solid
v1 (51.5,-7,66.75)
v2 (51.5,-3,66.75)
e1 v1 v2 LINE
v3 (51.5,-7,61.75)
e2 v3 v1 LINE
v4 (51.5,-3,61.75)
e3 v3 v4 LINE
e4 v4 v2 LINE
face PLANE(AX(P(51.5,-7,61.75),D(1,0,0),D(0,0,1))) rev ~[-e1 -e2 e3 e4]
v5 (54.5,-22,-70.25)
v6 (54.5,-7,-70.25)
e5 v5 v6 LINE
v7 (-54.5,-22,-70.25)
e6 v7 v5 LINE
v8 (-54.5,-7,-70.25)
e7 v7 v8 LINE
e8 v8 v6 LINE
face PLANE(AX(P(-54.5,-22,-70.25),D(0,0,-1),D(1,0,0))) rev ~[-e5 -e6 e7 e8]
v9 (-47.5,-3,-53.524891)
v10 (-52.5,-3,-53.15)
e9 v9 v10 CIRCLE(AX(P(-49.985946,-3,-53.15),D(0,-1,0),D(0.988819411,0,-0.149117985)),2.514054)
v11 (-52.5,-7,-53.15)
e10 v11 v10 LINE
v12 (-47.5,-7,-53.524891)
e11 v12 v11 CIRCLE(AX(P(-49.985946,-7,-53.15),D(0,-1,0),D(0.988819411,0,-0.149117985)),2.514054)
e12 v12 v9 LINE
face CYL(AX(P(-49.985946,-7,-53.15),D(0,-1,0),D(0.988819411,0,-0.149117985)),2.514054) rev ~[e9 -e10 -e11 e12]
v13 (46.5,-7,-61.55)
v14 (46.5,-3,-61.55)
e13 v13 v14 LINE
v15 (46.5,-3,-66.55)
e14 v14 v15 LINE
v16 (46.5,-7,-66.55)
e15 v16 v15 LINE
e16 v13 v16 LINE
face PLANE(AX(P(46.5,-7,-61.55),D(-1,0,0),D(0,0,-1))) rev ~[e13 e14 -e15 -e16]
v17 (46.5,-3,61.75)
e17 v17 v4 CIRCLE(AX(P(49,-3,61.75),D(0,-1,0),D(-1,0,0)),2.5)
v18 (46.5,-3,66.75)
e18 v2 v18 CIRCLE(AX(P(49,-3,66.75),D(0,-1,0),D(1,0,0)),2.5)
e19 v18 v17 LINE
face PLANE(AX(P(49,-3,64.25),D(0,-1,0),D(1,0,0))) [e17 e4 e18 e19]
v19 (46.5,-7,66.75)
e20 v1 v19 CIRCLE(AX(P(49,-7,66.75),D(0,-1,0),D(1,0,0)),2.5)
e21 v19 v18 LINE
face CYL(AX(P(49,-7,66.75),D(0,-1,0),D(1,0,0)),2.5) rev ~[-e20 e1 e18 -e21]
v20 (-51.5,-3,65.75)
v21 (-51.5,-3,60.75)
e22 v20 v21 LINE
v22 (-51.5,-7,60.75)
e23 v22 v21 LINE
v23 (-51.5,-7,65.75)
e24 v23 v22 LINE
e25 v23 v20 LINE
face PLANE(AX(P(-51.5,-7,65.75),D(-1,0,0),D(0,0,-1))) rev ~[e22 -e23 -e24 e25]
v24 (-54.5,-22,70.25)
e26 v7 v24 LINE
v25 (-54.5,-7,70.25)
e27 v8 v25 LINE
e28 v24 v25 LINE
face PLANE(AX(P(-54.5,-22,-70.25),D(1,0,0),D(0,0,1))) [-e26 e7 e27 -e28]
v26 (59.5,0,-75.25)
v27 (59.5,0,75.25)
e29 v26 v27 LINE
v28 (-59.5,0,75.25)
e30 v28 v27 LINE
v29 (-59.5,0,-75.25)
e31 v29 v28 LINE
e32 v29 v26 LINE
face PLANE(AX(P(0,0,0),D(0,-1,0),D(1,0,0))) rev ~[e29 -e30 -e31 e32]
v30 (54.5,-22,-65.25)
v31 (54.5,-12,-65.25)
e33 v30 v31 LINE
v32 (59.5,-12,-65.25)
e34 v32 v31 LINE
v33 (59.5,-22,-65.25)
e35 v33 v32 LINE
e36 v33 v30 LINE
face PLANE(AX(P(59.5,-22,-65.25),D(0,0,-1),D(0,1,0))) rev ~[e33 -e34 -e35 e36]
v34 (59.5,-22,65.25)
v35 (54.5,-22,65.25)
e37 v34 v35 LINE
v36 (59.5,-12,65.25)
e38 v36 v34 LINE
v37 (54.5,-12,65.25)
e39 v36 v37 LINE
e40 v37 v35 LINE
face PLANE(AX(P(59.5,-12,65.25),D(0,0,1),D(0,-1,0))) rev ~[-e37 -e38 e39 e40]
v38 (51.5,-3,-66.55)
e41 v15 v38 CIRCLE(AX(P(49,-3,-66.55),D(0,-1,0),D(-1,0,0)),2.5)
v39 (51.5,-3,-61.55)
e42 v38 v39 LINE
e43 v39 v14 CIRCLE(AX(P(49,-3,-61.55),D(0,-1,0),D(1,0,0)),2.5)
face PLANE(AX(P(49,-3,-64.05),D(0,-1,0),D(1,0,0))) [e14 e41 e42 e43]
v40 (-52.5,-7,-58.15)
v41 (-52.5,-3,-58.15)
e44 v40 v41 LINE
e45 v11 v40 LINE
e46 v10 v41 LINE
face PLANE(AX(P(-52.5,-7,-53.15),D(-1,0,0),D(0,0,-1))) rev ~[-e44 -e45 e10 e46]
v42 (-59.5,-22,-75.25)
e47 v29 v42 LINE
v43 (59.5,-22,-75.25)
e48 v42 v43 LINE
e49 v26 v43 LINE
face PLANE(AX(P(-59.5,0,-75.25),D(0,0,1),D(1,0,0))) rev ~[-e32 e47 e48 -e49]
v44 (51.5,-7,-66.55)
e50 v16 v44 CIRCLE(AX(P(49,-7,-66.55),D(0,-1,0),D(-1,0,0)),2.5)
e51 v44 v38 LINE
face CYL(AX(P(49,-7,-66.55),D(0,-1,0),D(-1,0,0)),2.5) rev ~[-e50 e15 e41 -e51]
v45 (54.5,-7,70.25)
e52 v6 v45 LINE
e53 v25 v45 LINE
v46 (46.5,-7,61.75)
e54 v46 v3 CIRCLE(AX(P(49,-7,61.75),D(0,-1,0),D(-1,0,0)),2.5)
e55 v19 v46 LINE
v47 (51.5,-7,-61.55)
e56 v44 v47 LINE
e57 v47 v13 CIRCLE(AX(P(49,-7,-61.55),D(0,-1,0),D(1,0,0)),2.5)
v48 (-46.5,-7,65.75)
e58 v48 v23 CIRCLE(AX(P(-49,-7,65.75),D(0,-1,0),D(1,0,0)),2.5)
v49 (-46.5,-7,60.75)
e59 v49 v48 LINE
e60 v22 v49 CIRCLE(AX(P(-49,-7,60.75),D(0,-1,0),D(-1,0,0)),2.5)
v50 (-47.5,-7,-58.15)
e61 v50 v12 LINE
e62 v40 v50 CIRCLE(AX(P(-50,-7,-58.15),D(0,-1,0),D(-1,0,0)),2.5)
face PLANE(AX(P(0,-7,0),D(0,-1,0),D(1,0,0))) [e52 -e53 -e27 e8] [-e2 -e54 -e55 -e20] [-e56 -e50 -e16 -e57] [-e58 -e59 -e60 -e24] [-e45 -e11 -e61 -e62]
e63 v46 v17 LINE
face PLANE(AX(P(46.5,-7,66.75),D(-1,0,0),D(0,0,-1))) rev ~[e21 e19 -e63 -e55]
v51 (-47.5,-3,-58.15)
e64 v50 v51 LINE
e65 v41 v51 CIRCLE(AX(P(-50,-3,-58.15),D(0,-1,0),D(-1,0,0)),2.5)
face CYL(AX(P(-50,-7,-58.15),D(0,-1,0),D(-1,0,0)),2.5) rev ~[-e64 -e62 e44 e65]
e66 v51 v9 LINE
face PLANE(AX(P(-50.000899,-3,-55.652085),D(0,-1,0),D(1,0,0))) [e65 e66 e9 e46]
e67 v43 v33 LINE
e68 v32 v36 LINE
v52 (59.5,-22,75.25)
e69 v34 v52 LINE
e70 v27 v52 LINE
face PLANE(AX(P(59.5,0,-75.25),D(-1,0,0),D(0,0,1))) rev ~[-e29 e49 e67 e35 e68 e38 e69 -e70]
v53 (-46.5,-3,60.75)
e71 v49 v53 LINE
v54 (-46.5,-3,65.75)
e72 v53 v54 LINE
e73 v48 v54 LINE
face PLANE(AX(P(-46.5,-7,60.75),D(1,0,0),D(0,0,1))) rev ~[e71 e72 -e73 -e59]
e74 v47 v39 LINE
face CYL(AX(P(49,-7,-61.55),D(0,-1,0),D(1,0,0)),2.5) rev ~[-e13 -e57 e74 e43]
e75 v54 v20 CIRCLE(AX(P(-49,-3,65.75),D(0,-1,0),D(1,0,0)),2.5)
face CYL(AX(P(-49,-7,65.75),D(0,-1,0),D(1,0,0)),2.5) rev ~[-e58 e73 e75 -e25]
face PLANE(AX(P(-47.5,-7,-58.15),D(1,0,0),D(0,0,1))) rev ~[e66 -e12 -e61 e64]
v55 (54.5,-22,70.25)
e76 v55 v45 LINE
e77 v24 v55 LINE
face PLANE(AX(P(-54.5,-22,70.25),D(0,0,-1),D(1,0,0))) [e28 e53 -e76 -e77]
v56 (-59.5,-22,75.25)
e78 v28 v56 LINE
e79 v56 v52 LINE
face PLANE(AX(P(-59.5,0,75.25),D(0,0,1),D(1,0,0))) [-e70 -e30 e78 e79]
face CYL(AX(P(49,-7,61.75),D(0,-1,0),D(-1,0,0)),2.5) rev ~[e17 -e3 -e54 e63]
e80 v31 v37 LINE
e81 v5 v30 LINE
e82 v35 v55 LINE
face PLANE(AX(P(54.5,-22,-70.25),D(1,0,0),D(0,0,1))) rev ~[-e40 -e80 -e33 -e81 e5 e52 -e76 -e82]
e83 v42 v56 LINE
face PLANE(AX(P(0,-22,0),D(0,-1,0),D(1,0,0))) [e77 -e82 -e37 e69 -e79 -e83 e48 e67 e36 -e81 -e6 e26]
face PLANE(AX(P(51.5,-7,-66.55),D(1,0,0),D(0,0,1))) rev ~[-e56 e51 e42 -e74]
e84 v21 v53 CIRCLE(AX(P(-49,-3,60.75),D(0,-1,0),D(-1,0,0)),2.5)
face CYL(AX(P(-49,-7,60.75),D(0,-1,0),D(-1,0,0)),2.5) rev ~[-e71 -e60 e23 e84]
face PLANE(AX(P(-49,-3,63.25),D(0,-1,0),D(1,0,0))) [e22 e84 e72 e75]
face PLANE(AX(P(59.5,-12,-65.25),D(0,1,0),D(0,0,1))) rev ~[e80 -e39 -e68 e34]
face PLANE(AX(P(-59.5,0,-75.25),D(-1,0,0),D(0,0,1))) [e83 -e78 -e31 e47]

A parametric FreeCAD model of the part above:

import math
import FreeCAD as App
import Part
import Sketcher


def add_polygon(sketch, points):
    """Adds a closed chain of lines whose ends are joined by coincident constraints."""
    first, n = sketch.GeometryCount, len(points)
    for a, b in zip(points, points[1:] + points[:1]):
        sketch.addGeometry(Part.LineSegment(App.Vector(*a, 0), App.Vector(*b, 0)), False)
    for i in range(n):
        sketch.addConstraint(Sketcher.Constraint("Coincident", first + i, 2, first + (i + 1) % n, 1))

doc = App.newDocument("Part")
params = doc.addObject("Spreadsheet::Sheet", "Params")
for row, (alias, value) in enumerate([
    ("sketch1_width", "119 mm"),
    ("sketch1_height", "150.5 mm"),
    ("pad1_length", "22 mm"),
    ("sketch2_width", "109 mm"),
    ("sketch2_height", "140.5 mm"),
    ("pocket1_length", "15 mm"),
    ("sketch3_width", "10 mm"),
    ("sketch3_height", "130.5 mm"),
    ("pocket2_length", "25 mm"),
    ("sketch4_radius", "2.5 mm"),
    ("sketch4_height", "5 mm"),
    ("pocket3_length", "4 mm"),
], start=1):
    params.set(f"A{row}", alias)
    params.set(f"B{row}", "=" + value)
    params.setAlias(f"B{row}", alias)

body = doc.addObject("PartDesign::Body", "Body")

# Sketch on XZ plane
sketch1 = doc.addObject("Sketcher::SketchObject", "Sketch")
body.addObject(sketch1)
sketch1.AttachmentSupport = (doc.XZ_Plane, [""])
sketch1.MapMode = "FlatFace"
add_polygon(sketch1, [(-60, 75), (-60, -75), (60, -75), (60, 75)])  # lines 0-3
sketch1.addConstraint([
    Sketcher.Constraint("Vertical", 0),
    Sketcher.Constraint("Horizontal", 1),
    Sketcher.Constraint("Vertical", 2),
    Sketcher.Constraint("Horizontal", 3),
    Sketcher.Constraint("Symmetric", 0, 2, 2, 2, -1, 1),
    Sketcher.Constraint("DistanceX", 1, 1, 1, 2, 119.0),
    Sketcher.Constraint("DistanceY", 0, 2, 0, 1, 150.5),
])
sketch1.setExpression("Constraints[9]", "Params.sketch1_width")
sketch1.setExpression("Constraints[10]", "Params.sketch1_height")
pad1 = doc.addObject("PartDesign::Pad", "Pad")
body.addObject(pad1)
pad1.Profile = sketch1
pad1.setExpression("Length", "Params.pad1_length")

# Sketch on XZ plane
sketch2 = doc.addObject("Sketcher::SketchObject", "Sketch001")
body.addObject(sketch2)
sketch2.AttachmentSupport = (doc.XZ_Plane, [""])
sketch2.MapMode = "FlatFace"
sketch2.AttachmentOffset = App.Placement(App.Vector(0, 0, 22), App.Rotation())
add_polygon(sketch2, [(-54, 70), (-54, -70), (54, -70), (54, 70)])  # lines 0-3
sketch2.addConstraint([
    Sketcher.Constraint("Vertical", 0),
    Sketcher.Constraint("Horizontal", 1),
    Sketcher.Constraint("Vertical", 2),
    Sketcher.Constraint("Horizontal", 3),
    Sketcher.Constraint("Symmetric", 0, 2, 2, 2, -1, 1),
    Sketcher.Constraint("DistanceX", 1, 1, 1, 2, 109.0),
    Sketcher.Constraint("DistanceY", 0, 2, 0, 1, 140.5),
])
sketch2.setExpression("Constraints[9]", "Params.sketch2_width")
sketch2.setExpression("Constraints[10]", "Params.sketch2_height")
pocket1 = doc.addObject("PartDesign::Pocket", "Pocket")
body.addObject(pocket1)
pocket1.Profile = sketch2
pocket1.setExpression("Length", "Params.pocket1_length")

# Sketch on YZ plane
sketch3 = doc.addObject("Sketcher::SketchObject", "Sketch002")
body.addObject(sketch3)
sketch3.AttachmentSupport = (doc.YZ_Plane, [""])
sketch3.MapMode = "FlatFace"
sketch3.AttachmentOffset = App.Placement(App.Vector(0, 0, 59.5), App.Rotation())
add_polygon(sketch3, [(-22, 65), (-22, -65), (-12, -65), (-12, 65)])  # lines 0-3
sketch3.addConstraint([
    Sketcher.Constraint("Vertical", 0),
    Sketcher.Constraint("Horizontal", 1),
    Sketcher.Constraint("Vertical", 2),
    Sketcher.Constraint("Horizontal", 3),
    Sketcher.Constraint("DistanceX", 1, 1, 1, 2, 10.0),
    Sketcher.Constraint("DistanceY", 0, 2, 0, 1, 130.5),
    Sketcher.Constraint("DistanceX", 0, 2, -1, 1, 22.0),
    Sketcher.Constraint("DistanceY", 0, 2, -1, 1, 65.25),
])
sketch3.setExpression("Constraints[8]", "Params.sketch3_width")
sketch3.setExpression("Constraints[9]", "Params.sketch3_height")
pocket2 = doc.addObject("PartDesign::Pocket", "Pocket001")
body.addObject(pocket2)
pocket2.Profile = sketch3
pocket2.setExpression("Length", "Params.pocket2_length")

# Sketch on XZ plane
sketch4 = doc.addObject("Sketcher::SketchObject", "Sketch003")
body.addObject(sketch4)
sketch4.AttachmentSupport = (doc.XZ_Plane, [""])
sketch4.MapMode = "FlatFace"
sketch4.AttachmentOffset = App.Placement(App.Vector(0, 0, 7), App.Rotation())
sketch4.addGeometry([
    Part.LineSegment(App.Vector(-46.5, 60.8, 0), App.Vector(-46.5, 65.8, 0)),  # 0
    Part.ArcOfCircle(Part.Circle(App.Vector(-49, 65.8, 0), App.Vector(0, 0, 1), 2.5), math.radians(0), math.radians(180)),  # 1
    Part.LineSegment(App.Vector(-51.5, 65.8, 0), App.Vector(-51.5, 60.8, 0)),  # 2
    Part.ArcOfCircle(Part.Circle(App.Vector(-49, 60.8, 0), App.Vector(0, 0, 1), 2.5), math.radians(180), math.radians(360)),  # 3
    Part.LineSegment(App.Vector(51.5, 61.8, 0), App.Vector(51.5, 66.8, 0)),  # 4
    Part.ArcOfCircle(Part.Circle(App.Vector(49, 66.8, 0), App.Vector(0, 0, 1), 2.5), math.radians(0), math.radians(180)),  # 5
    Part.LineSegment(App.Vector(46.5, 66.8, 0), App.Vector(46.5, 61.8, 0)),  # 6
    Part.ArcOfCircle(Part.Circle(App.Vector(49, 61.8, 0), App.Vector(0, 0, 1), 2.5), math.radians(180), math.radians(360)),  # 7
    Part.LineSegment(App.Vector(46.5, -61.5, 0), App.Vector(46.5, -66.5, 0)),  # 8
    Part.ArcOfCircle(Part.Circle(App.Vector(49, -66.5, 0), App.Vector(0, 0, 1), 2.5), math.radians(180), math.radians(360)),  # 9
    Part.LineSegment(App.Vector(51.5, -66.5, 0), App.Vector(51.5, -61.5, 0)),  # 10
    Part.ArcOfCircle(Part.Circle(App.Vector(49, -61.5, 0), App.Vector(0, 0, 1), 2.5), math.radians(0), math.radians(180)),  # 11
    Part.LineSegment(App.Vector(-52.5, -53.1, 0), App.Vector(-52.5, -58.1, 0)),  # 12
    Part.ArcOfCircle(Part.Circle(App.Vector(-50, -58.1, 0), App.Vector(0, 0, 1), 2.5), math.radians(180), math.radians(360)),  # 13
    Part.LineSegment(App.Vector(-47.5, -58.1, 0), App.Vector(-47.5, -53.5, 0)),  # 14
    Part.ArcOfCircle(Part.Circle(App.Vector(-50, -53.2, 0), App.Vector(0, 0, 1), 2.5), math.radians(-9), math.radians(180)),  # 15
], False)
sketch4.addConstraint([
    Sketcher.Constraint("Tangent", 0, 2, 1, 1),
    Sketcher.Constraint("Tangent", 1, 2, 2, 1),
    Sketcher.Constraint("Tangent", 2, 2, 3, 1),
    Sketcher.Constraint("Tangent", 3, 2, 0, 1),
    Sketcher.Constraint("Tangent", 4, 2, 5, 1),
    Sketcher.Constraint("Tangent", 5, 2, 6, 1),
    Sketcher.Constraint("Tangent", 6, 2, 7, 1),
    Sketcher.Constraint("Tangent", 7, 2, 4, 1),
    Sketcher.Constraint("Tangent", 8, 2, 9, 1),
    Sketcher.Constraint("Tangent", 9, 2, 10, 1),
    Sketcher.Constraint("Tangent", 10, 2, 11, 1),
    Sketcher.Constraint("Tangent", 11, 2, 8, 1),
    Sketcher.Constraint("Tangent", 12, 2, 13, 1),
    Sketcher.Constraint("Tangent", 13, 2, 14, 1),
    Sketcher.Constraint("Coincident", 14, 2, 15, 1),
    Sketcher.Constraint("Tangent", 15, 2, 12, 1),
    Sketcher.Constraint("Vertical", 0),
    Sketcher.Constraint("Vertical", 2),
    Sketcher.Constraint("Vertical", 4),
    Sketcher.Constraint("Vertical", 6),
    Sketcher.Constraint("Vertical", 8),
    Sketcher.Constraint("Vertical", 10),
    Sketcher.Constraint("Vertical", 12),
    Sketcher.Constraint("Vertical", 14),
    Sketcher.Constraint("Equal", 3, 5),
    Sketcher.Constraint("Equal", 7, 9),
    Sketcher.Constraint("Equal", 11, 13),
    Sketcher.Constraint("Vertical", 7, 3, 9, 3),
    Sketcher.Constraint("Equal", 2, 4),
    Sketcher.Constraint("Equal", 6, 8),
    Sketcher.Constraint("Equal", 10, 12),
    Sketcher.Constraint("Radius", 1, 2.5),
    Sketcher.Constraint("DistanceY", 0, 1, 0, 2, 5.0),
    Sketcher.Constraint("DistanceX", 1, 3, -1, 1, 49.0),
    Sketcher.Constraint("DistanceX", -1, 1, 5, 3, 49.0),
    Sketcher.Constraint("DistanceX", 13, 3, -1, 1, 50.0),
    Sketcher.Constraint("DistanceY", 1, 3, 5, 3, 1.0),
    Sketcher.Constraint("DistanceY", 9, 3, 7, 3, 128.3),
    Sketcher.Constraint("DistanceY", 11, 3, 13, 3, 3.4),
    Sketcher.Constraint("DistanceY", -1, 1, 1, 3, 65.75),
    Sketcher.Constraint("Radius", 15, 2.514054),
])
sketch4.setExpression("Constraints[31]", "Params.sketch4_radius")
sketch4.setExpression("Constraints[32]", "Params.sketch4_height")
pocket3 = doc.addObject("PartDesign::Pocket", "Pocket002")
body.addObject(pocket3)
pocket3.Profile = sketch4
pocket3.setExpression("Length", "Params.pocket3_length")

doc.recompute()
